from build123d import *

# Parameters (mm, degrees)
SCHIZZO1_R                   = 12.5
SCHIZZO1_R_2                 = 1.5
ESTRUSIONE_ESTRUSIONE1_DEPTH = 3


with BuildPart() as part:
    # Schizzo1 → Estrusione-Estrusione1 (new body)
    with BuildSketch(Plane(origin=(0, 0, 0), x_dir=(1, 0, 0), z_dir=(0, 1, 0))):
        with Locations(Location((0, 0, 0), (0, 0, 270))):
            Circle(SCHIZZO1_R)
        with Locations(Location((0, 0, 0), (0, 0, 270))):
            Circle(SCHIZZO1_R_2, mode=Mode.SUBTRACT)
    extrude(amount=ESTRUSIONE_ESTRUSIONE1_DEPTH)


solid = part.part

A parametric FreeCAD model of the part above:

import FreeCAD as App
import Part
import Sketcher

doc = App.newDocument("Part")
body = doc.addObject("PartDesign::Body", "Body")

# Sketch on XZ plane
sketch1 = body.newObject("Sketcher::SketchObject", "Sketch")
sketch1.AttachmentSupport = (doc.getObject("XZ_Plane"), [""])
sketch1.MapMode = "FlatFace"
sketch1.addGeometry([
    Part.Circle(App.Vector(0, 0, 0), App.Vector(0, 0, 1), 12.5),
    Part.Circle(App.Vector(0, 0, 0), App.Vector(0, 0, 1), 1.5),
], False)
sketch1.addConstraint([
    Sketcher.Constraint("Coincident", 0, 3, -1, 1),
    Sketcher.Constraint("Coincident", 1, 3, -1, 1),
    Sketcher.Constraint("Diameter", 0, 25.0),
    Sketcher.Constraint("Diameter", 1, 3.0),
])
pad1 = body.newObject("PartDesign::Pad", "Pad")
pad1.Profile = sketch1
pad1.Length = 3
pad1.Reversed = True

doc.recompute()
